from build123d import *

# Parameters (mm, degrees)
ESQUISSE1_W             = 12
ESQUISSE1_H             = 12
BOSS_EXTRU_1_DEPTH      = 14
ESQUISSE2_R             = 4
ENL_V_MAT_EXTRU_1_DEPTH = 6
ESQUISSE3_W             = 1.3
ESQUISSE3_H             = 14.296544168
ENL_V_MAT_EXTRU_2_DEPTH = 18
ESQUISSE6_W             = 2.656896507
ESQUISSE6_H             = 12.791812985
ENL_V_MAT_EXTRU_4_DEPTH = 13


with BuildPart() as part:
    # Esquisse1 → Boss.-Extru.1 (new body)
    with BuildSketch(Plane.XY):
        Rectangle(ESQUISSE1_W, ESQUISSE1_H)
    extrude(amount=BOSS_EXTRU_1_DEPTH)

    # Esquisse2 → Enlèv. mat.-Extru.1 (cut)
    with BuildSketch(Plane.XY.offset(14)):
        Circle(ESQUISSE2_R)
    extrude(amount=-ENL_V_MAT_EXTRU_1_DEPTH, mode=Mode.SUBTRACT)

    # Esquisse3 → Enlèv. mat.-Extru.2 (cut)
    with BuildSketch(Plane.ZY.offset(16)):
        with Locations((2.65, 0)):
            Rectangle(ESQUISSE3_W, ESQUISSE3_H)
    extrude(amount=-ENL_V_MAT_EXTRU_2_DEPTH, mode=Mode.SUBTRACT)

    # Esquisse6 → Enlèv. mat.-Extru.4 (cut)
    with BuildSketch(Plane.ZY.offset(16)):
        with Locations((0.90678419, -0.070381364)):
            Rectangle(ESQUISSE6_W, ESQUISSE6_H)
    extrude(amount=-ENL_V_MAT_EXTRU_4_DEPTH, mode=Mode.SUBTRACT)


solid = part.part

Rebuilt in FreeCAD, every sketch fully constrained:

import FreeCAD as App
import Part
import Sketcher

V = App.Vector
Q = App.Units.Quantity


def add_polygon(sketch, points):
    """Adds a closed chain of lines whose ends are joined by coincident constraints."""
    first, n = sketch.GeometryCount, len(points)
    for a, b in zip(points, points[1:] + points[:1]):
        sketch.addGeometry(Part.LineSegment(App.Vector(*a, 0), App.Vector(*b, 0)), False)
    for i in range(n):
        sketch.addConstraint(Sketcher.Constraint("Coincident", first + i, 2, first + (i + 1) % n, 1))

doc = App.newDocument("Part")
params = doc.addObject("Spreadsheet::Sheet", "Params")
for row, (alias, value) in enumerate([
    ("sketch1_width", "12 mm"),
    ("pad1_length", "14 mm"),
    ("sketch2_diameter", "8 mm"),
    ("pocket1_length", "6 mm"),
    ("sketch3_height", "1.3 mm"),
    ("pocket2_length", "18 mm"),
    ("pocket3_length", "13 mm"),
], start=1):
    params.set(f"A{row}", alias)
    params.set(f"B{row}", "=" + value)
    params.setAlias(f"B{row}", alias)

body = doc.addObject("PartDesign::Body", "Body")

sketch1 = body.newObject("Sketcher::SketchObject", "Sketch")
sketch1.AttachmentSupport = (doc.getObject("XY_Plane"), [""])
sketch1.MapMode = "FlatFace"
add_polygon(sketch1, [(-6, 6), (-6, -6), (6, -6), (6, 6)])
sketch1.addConstraint([
    Sketcher.Constraint("Vertical", 0),
    Sketcher.Constraint("Horizontal", 1),
    Sketcher.Constraint("Vertical", 2),
    Sketcher.Constraint("Horizontal", 3),
    Sketcher.Constraint("Symmetric", 0, 2, 2, 2, -1, 1),
    Sketcher.Constraint("Equal", 3, 0),
    Sketcher.Constraint("DistanceX", 1, 1, 1, 2, Q("12 mm")),
])
sketch1.setExpression("Constraints[10]", "Params.sketch1_width")
pad1 = body.newObject("PartDesign::Pad", "Pad")
pad1.Profile = sketch1
pad1.setExpression("Length", "Params.pad1_length")

sketch2 = body.newObject("Sketcher::SketchObject", "Sketch001")
sketch2.AttachmentSupport = (doc.getObject("XY_Plane"), [""])
sketch2.MapMode = "FlatFace"
sketch2.AttachmentOffset = App.Placement(V(0, 0, 14), App.Rotation())
sketch2.addGeometry(Part.Circle(V(0, 0, 0), V(0, 0, 1), 4), False)
sketch2.addConstraint([
    Sketcher.Constraint("Coincident", 0, 3, -1, 1),
    Sketcher.Constraint("Diameter", 0, Q("8 mm")),
])
sketch2.setExpression("Constraints[1]", "Params.sketch2_diameter")
pocket1 = body.newObject("PartDesign::Pocket", "Pocket")
pocket1.Profile = sketch2
pocket1.setExpression("Length", "Params.pocket1_length")

sketch3 = body.newObject("Sketcher::SketchObject", "Sketch002")
sketch3.AttachmentSupport = (doc.getObject("YZ_Plane"), [""])
sketch3.MapMode = "FlatFace"
sketch3.AttachmentOffset = App.Placement(V(0, 0, -16), App.Rotation())
add_polygon(sketch3, [(7.1, 2), (-7.1, 2), (-7.1, 3.3), (7.1, 3.3)])
sketch3.addConstraint([
    Sketcher.Constraint("Horizontal", 0),
    Sketcher.Constraint("Vertical", 1),
    Sketcher.Constraint("Horizontal", 2),
    Sketcher.Constraint("Vertical", 3),
    Sketcher.Constraint("DistanceY", 1, 1, 1, 2, Q("1.3 mm")),
    Sketcher.Constraint("DistanceY", -1, 1, 0, 2, Q("2 mm")),
    Sketcher.Constraint("DistanceX", 0, 2, 0, 1, Q("14.296544 mm")),
    Sketcher.Constraint("DistanceX", 0, 2, -1, 1, Q("7.148272 mm")),
])
sketch3.setExpression("Constraints[8]", "Params.sketch3_height")
pocket2 = body.newObject("PartDesign::Pocket", "Pocket001")
pocket2.Profile = sketch3
pocket2.setExpression("Length", "Params.pocket2_length")
pocket2.Reversed = True

sketch4 = body.newObject("Sketcher::SketchObject", "Sketch003")
sketch4.AttachmentSupport = (doc.getObject("YZ_Plane"), [""])
sketch4.MapMode = "FlatFace"
sketch4.AttachmentOffset = App.Placement(V(0, 0, -16), App.Rotation())
add_polygon(sketch4, [(6.3, -0.4), (-6.5, -0.4), (-6.5, 2.2), (6.3, 2.2)])
sketch4.addConstraint([
    Sketcher.Constraint("Horizontal", 0),
    Sketcher.Constraint("Vertical", 1),
    Sketcher.Constraint("Horizontal", 2),
    Sketcher.Constraint("Vertical", 3),
    Sketcher.Constraint("DistanceX", 0, 2, 0, 1, Q("12.791813 mm")),
    Sketcher.Constraint("DistanceY", 1, 1, 1, 2, Q("2.656897 mm")),
    Sketcher.Constraint("DistanceX", 0, 2, -1, 1, Q("6.466288 mm")),
    Sketcher.Constraint("DistanceY", 0, 2, -1, 1, Q("0.421664 mm")),
])
pocket3 = body.newObject("PartDesign::Pocket", "Pocket002")
pocket3.Profile = sketch4
pocket3.setExpression("Length", "Params.pocket3_length")
pocket3.Reversed = True

doc.recompute()
